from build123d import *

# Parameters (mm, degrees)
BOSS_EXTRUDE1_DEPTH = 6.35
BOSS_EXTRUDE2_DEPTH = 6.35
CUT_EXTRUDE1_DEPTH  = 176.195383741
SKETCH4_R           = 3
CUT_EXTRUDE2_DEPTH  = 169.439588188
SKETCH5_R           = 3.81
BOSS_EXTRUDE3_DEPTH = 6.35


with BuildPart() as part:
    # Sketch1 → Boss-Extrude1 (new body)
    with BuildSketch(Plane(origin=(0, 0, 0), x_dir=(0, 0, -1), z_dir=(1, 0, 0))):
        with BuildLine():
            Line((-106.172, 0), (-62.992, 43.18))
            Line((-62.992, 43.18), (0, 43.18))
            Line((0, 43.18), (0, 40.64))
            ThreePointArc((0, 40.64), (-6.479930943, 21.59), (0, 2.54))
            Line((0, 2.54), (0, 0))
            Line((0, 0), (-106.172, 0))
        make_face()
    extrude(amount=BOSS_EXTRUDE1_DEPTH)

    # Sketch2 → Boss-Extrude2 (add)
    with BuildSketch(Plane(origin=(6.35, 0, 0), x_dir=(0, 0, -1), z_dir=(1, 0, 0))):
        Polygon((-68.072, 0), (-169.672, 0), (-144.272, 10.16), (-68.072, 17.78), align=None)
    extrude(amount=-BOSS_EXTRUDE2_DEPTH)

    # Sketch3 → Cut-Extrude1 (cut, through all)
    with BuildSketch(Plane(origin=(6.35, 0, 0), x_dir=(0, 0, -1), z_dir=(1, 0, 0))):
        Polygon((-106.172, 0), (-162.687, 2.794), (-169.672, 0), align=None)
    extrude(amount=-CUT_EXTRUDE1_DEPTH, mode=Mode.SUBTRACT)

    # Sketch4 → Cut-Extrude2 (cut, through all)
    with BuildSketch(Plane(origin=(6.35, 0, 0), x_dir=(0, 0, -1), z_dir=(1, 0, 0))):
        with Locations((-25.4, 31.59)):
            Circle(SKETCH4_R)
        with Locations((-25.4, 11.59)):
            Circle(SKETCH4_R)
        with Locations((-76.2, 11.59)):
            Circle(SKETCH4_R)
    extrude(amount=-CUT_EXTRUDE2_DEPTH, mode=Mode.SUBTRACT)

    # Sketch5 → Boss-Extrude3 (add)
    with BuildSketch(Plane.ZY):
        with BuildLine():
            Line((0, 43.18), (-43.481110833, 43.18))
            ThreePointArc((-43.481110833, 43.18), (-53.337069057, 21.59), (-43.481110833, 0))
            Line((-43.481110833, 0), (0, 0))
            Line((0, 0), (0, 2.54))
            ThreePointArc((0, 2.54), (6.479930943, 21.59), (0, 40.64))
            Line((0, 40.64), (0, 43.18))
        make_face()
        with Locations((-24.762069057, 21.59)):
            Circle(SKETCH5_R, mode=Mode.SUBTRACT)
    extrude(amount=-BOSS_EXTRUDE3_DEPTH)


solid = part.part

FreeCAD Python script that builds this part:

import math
import FreeCAD as App
import Part
import Sketcher

V = App.Vector
Q = App.Units.Quantity

doc = App.newDocument("Part")
body = doc.addObject("PartDesign::Body", "Body")

# Sketch on YZ plane
sketch1 = doc.addObject("Sketcher::SketchObject", "Sketch")
body.addObject(sketch1)
sketch1.AttachmentSupport = (doc.YZ_Plane, [""])
sketch1.MapMode = "FlatFace"
sketch1.addGeometry(Part.LineSegment(V(43.18, 62.992, 0), V(0, 106.172, 0)), False)
sketch1.addGeometry(Part.LineSegment(V(0, 106.172, 0), V(0, 0, 0)), False)
sketch1.addGeometry(Part.LineSegment(V(0, 0, 0), V(2.54, 0, 0)), False)
sketch1.addGeometry(Part.ArcOfCircle(Part.Circle(V(21.59, -24.762069, 0), V(0, 0, 1), 31.242), math.radians(52.428131), math.radians(127.571869)), False)
sketch1.addGeometry(Part.LineSegment(V(40.64, 0, 0), V(43.18, 0, 0)), False)
sketch1.addGeometry(Part.LineSegment(V(43.18, 0, 0), V(43.18, 62.992, 0)), False)
sketch1.addConstraint(Sketcher.Constraint("Coincident", 0, 2, 1, 1))
sketch1.addConstraint(Sketcher.Constraint("Coincident", 1, 2, 2, 1))
sketch1.addConstraint(Sketcher.Constraint("Coincident", 2, 2, 3, 2))
sketch1.addConstraint(Sketcher.Constraint("Coincident", 3, 1, 4, 1))
sketch1.addConstraint(Sketcher.Constraint("Coincident", 4, 2, 5, 1))
sketch1.addConstraint(Sketcher.Constraint("Coincident", 5, 2, 0, 1))
sketch1.addConstraint(Sketcher.Constraint("Vertical", 1))
sketch1.addConstraint(Sketcher.Constraint("Horizontal", 2))
sketch1.addConstraint(Sketcher.Constraint("Horizontal", 4))
sketch1.addConstraint(Sketcher.Constraint("Vertical", 5))
sketch1.addConstraint(Sketcher.Constraint("Coincident", 1, 2, -1, 1))
sketch1.addConstraint(Sketcher.Constraint("PointOnObject", 3, 1, -1))
sketch1.addConstraint(Sketcher.Constraint("Equal", 2, 4))
sketch1.addConstraint(Sketcher.Constraint("Radius", 3, Q("1.23 in")))
sketch1.addConstraint(Sketcher.Constraint("DistanceX", 2, 1, 2, 2, Q("0.1 in")))
sketch1.addConstraint(Sketcher.Constraint("Angle", 0, Q("135 deg")))
sketch1.addConstraint(Sketcher.Constraint("DistanceY", 1, 2, 1, 1, Q("4.18 in")))
sketch1.addConstraint(Sketcher.Constraint("DistanceY", 5, 1, 5, 2, Q("2.48 in")))
pad1 = doc.addObject("PartDesign::Pad", "Pad")
body.addObject(pad1)
pad1.Profile = sketch1
pad1.Length = Q("0.25 in")

# Sketch on YZ plane
sketch2 = doc.addObject("Sketcher::SketchObject", "Sketch001")
body.addObject(sketch2)
sketch2.AttachmentSupport = (doc.YZ_Plane, [""])
sketch2.MapMode = "FlatFace"
sketch2.AttachmentOffset = App.Placement(V(0, 0, 0.25 * 25.4), App.Rotation())
sketch2.addGeometry(Part.LineSegment(V(0, 169.672, 0), V(0, 68.072, 0)), False)
sketch2.addGeometry(Part.LineSegment(V(0, 68.072, 0), V(17.78, 68.072, 0)), False)
sketch2.addGeometry(Part.LineSegment(V(17.78, 68.072, 0), V(10.16, 144.272, 0)), False)
sketch2.addGeometry(Part.LineSegment(V(10.16, 144.272, 0), V(0, 169.672, 0)), False)
sketch2.addConstraint(Sketcher.Constraint("Coincident", 0, 2, 1, 1))
sketch2.addConstraint(Sketcher.Constraint("Coincident", 1, 2, 2, 1))
sketch2.addConstraint(Sketcher.Constraint("Coincident", 2, 2, 3, 1))
sketch2.addConstraint(Sketcher.Constraint("Coincident", 3, 2, 0, 1))
sketch2.addConstraint(Sketcher.Constraint("Vertical", 0))
sketch2.addConstraint(Sketcher.Constraint("Horizontal", 1))
sketch2.addConstraint(Sketcher.Constraint("PointOnObject", 0, 2, -2))
sketch2.addConstraint(Sketcher.Constraint("DistanceY", 0, 2, 0, 1, Q("4 in")))
sketch2.addConstraint(Sketcher.Constraint("DistanceX", 1, 1, 1, 2, Q("0.7 in")))
sketch2.addConstraint(Sketcher.Constraint("DistanceY", 1, 2, 2, 2, Q("3 in")))
sketch2.addConstraint(Sketcher.Constraint("DistanceX", -1, 1, 2, 2, Q("0.4 in")))
sketch2.addConstraint(Sketcher.Constraint("DistanceY", -1, 1, 0, 2, Q("2.68 in")))
pad2 = doc.addObject("PartDesign::Pad", "Pad001")
body.addObject(pad2)
pad2.Profile = sketch2
pad2.Length = Q("0.25 in")
pad2.Reversed = True

# Sketch on YZ plane
sketch3 = doc.addObject("Sketcher::SketchObject", "Sketch002")
body.addObject(sketch3)
sketch3.AttachmentSupport = (doc.YZ_Plane, [""])
sketch3.MapMode = "FlatFace"
sketch3.AttachmentOffset = App.Placement(V(0, 0, 0.25 * 25.4), App.Rotation())
sketch3.addGeometry(Part.LineSegment(V(0, 106.172, 0), V(2.794, 162.687, 0)), False)
sketch3.addGeometry(Part.LineSegment(V(2.794, 162.687, 0), V(0, 169.672, 0)), False)
sketch3.addGeometry(Part.LineSegment(V(0, 169.672, 0), V(0, 106.172, 0)), False)
sketch3.addConstraint(Sketcher.Constraint("Coincident", 0, 2, 1, 1))
sketch3.addConstraint(Sketcher.Constraint("Coincident", 1, 2, 2, 1))
sketch3.addConstraint(Sketcher.Constraint("Coincident", 2, 2, 0, 1))
sketch3.addConstraint(Sketcher.Constraint("Vertical", 2))
sketch3.addConstraint(Sketcher.Constraint("PointOnObject", 1, 2, -2))
sketch3.addConstraint(Sketcher.Constraint("DistanceY", 2, 2, 2, 1, Q("2.5 in")))
sketch3.addConstraint(Sketcher.Constraint("DistanceX", -1, 1, 0, 2, Q("0.11 in")))
sketch3.addConstraint(Sketcher.Constraint("DistanceY", -1, 1, 1, 2, Q("6.68 in")))
sketch3.addConstraint(Sketcher.Constraint("DistanceY", -1, 1, 0, 2, Q("6.405 in")))
pocket1 = doc.addObject("PartDesign::Pocket", "Pocket")
body.addObject(pocket1)
pocket1.Profile = sketch3
pocket1.Type = "ThroughAll"

# Sketch on YZ plane
sketch4 = doc.addObject("Sketcher::SketchObject", "Sketch003")
body.addObject(sketch4)
sketch4.AttachmentSupport = (doc.YZ_Plane, [""])
sketch4.MapMode = "FlatFace"
sketch4.AttachmentOffset = App.Placement(V(0, 0, 0.25 * 25.4), App.Rotation())
sketch4.addGeometry(Part.Circle(V(31.59, 25.4, 0), V(0, 0, 1), 3), False)
sketch4.addGeometry(Part.Circle(V(11.59, 25.4, 0), V(0, 0, 1), 3), False)
sketch4.addGeometry(Part.Circle(V(11.59, 76.2, 0), V(0, 0, 1), 3), False)
sketch4.addConstraint(Sketcher.Constraint("Equal", 0, 1))
sketch4.addConstraint(Sketcher.Constraint("Equal", 1, 2))
sketch4.addConstraint(Sketcher.Constraint("Horizontal", 0, 3, 1, 3))
sketch4.addConstraint(Sketcher.Constraint("Vertical", 1, 3, 2, 3))
sketch4.addConstraint(Sketcher.Constraint("DistanceY", -1, 1, 0, 3, Q("1 in")))
sketch4.addConstraint(Sketcher.Constraint("DistanceY", -1, 1, 2, 3, Q("3 in")))
sketch4.addConstraint(Sketcher.Constraint("Diameter", 0, 6.0))
sketch4.addConstraint(Sketcher.Constraint("DistanceX", -1, 1, 0, 3, 31.59))
sketch4.addConstraint(Sketcher.Constraint("DistanceX", -1, 1, 1, 3, 11.59))
pocket2 = doc.addObject("PartDesign::Pocket", "Pocket001")
body.addObject(pocket2)
pocket2.Profile = sketch4
pocket2.Type = "ThroughAll"

# Sketch on YZ plane
sketch5 = doc.addObject("Sketcher::SketchObject", "Sketch004")
body.addObject(sketch5)
sketch5.AttachmentSupport = (doc.YZ_Plane, [""])
sketch5.MapMode = "FlatFace"
sketch5.addGeometry(Part.LineSegment(V(43.18, 0, 0), V(43.18, -43.481111, 0)), False)
sketch5.addGeometry(Part.ArcOfCircle(Part.Circle(V(21.59, -24.762069, 0), V(0, 0, 1), 28.575), math.radians(-139.073937), math.radians(-40.926063)), False)
sketch5.addGeometry(Part.LineSegment(V(0, -43.481111, 0), V(0, 0, 0)), False)
sketch5.addGeometry(Part.LineSegment(V(0, 0, 0), V(2.54, 0, 0)), False)
sketch5.addGeometry(Part.ArcOfCircle(Part.Circle(V(21.59, -24.762069, 0), V(0, 0, 1), 31.242), math.radians(52.428131), math.radians(127.571869)), False)
sketch5.addGeometry(Part.LineSegment(V(40.64, 0, 0), V(43.18, 0, 0)), False)
sketch5.addGeometry(Part.Circle(V(21.59, -24.762069, 0), V(0, 0, 1), 3.81), False)
sketch5.addConstraint(Sketcher.Constraint("Coincident", 0, 2, 1, 2))
sketch5.addConstraint(Sketcher.Constraint("Coincident", 1, 1, 2, 1))
sketch5.addConstraint(Sketcher.Constraint("Coincident", 2, 2, 3, 1))
sketch5.addConstraint(Sketcher.Constraint("Coincident", 3, 2, 4, 2))
sketch5.addConstraint(Sketcher.Constraint("Coincident", 4, 1, 5, 1))
sketch5.addConstraint(Sketcher.Constraint("Coincident", 5, 2, 0, 1))
sketch5.addConstraint(Sketcher.Constraint("Vertical", 0))
sketch5.addConstraint(Sketcher.Constraint("Vertical", 2))
sketch5.addConstraint(Sketcher.Constraint("Horizontal", 3))
sketch5.addConstraint(Sketcher.Constraint("Horizontal", 5))
sketch5.addConstraint(Sketcher.Constraint("Coincident", 2, 2, -1, 1))
sketch5.addConstraint(Sketcher.Constraint("Coincident", 4, 3, 1, 3))
sketch5.addConstraint(Sketcher.Constraint("Coincident", 6, 3, 1, 3))
sketch5.addConstraint(Sketcher.Constraint("PointOnObject", 4, 1, -1))
sketch5.addConstraint(Sketcher.Constraint("Horizontal", 0, 2, 1, 1))
sketch5.addConstraint(Sketcher.Constraint("Diameter", 6, Q("0.3 in")))
sketch5.addConstraint(Sketcher.Constraint("Radius", 4, Q("1.23 in")))
sketch5.addConstraint(Sketcher.Constraint("DistanceX", 3, 1, 3, 2, Q("0.1 in")))
sketch5.addConstraint(Sketcher.Constraint("Radius", 1, Q("1.125 in")))
sketch5.addConstraint(Sketcher.Constraint("DistanceX", -1, 1, 0, 2, Q("1.7 in")))
pad3 = doc.addObject("PartDesign::Pad", "Pad002")
body.addObject(pad3)
pad3.Profile = sketch5
pad3.Length = Q("0.25 in")

doc.recompute()
